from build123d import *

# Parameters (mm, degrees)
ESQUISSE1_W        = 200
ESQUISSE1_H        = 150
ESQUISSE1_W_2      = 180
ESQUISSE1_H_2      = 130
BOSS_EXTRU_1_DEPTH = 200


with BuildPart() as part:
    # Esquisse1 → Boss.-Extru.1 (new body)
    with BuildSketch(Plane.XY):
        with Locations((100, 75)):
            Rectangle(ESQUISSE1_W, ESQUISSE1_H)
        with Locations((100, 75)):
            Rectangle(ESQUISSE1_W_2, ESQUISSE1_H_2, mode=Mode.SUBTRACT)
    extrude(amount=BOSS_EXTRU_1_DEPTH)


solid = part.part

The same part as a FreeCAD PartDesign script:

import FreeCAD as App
import Part
import Sketcher
from FreeCAD import Vector

doc = App.newDocument("Part")
body = doc.addObject("PartDesign::Body", "Body")

# Sketch on XY plane
sketch1 = body.newObject("Sketcher::SketchObject", "Sketch")
sketch1.AttachmentSupport = (doc.getObject("XY_Plane"), [""])
sketch1.MapMode = "FlatFace"
sketch1.addGeometry([
    Part.LineSegment(Vector(0, 150, 0), Vector(0, 0, 0)),  # 0
    Part.LineSegment(Vector(0, 0, 0), Vector(200, 0, 0)),  # 1
    Part.LineSegment(Vector(200, 0, 0), Vector(200, 150, 0)),  # 2
    Part.LineSegment(Vector(200, 150, 0), Vector(0, 150, 0)),  # 3
    Part.LineSegment(Vector(190, 10, 0), Vector(10, 10, 0)),  # 4
    Part.LineSegment(Vector(10, 10, 0), Vector(10, 140, 0)),  # 5
    Part.LineSegment(Vector(10, 140, 0), Vector(190, 140, 0)),  # 6
    Part.LineSegment(Vector(190, 140, 0), Vector(190, 10, 0)),  # 7
], False)
sketch1.addConstraint([
    Sketcher.Constraint("Coincident", 0, 2, 1, 1),
    Sketcher.Constraint("Coincident", 1, 2, 2, 1),
    Sketcher.Constraint("Coincident", 2, 2, 3, 1),
    Sketcher.Constraint("Coincident", 3, 2, 0, 1),
    Sketcher.Constraint("Coincident", 4, 2, 5, 1),
    Sketcher.Constraint("Coincident", 5, 2, 6, 1),
    Sketcher.Constraint("Coincident", 6, 2, 7, 1),
    Sketcher.Constraint("Coincident", 7, 2, 4, 1),
    Sketcher.Constraint("Vertical", 0),
    Sketcher.Constraint("Horizontal", 1),
    Sketcher.Constraint("Vertical", 2),
    Sketcher.Constraint("Horizontal", 3),
    Sketcher.Constraint("Horizontal", 4),
    Sketcher.Constraint("Vertical", 5),
    Sketcher.Constraint("Horizontal", 6),
    Sketcher.Constraint("Vertical", 7),
    Sketcher.Constraint("Coincident", 0, 2, -1, 1),
    Sketcher.Constraint("DistanceX", 1, 1, 1, 2, 200.0),
    Sketcher.Constraint("DistanceX", 4, 2, 4, 1, 180.0),
    Sketcher.Constraint("DistanceY", 0, 2, 0, 1, 150.0),
    Sketcher.Constraint("DistanceY", 5, 1, 5, 2, 130.0),
    Sketcher.Constraint("DistanceX", -1, 1, 4, 2, 10.0),
    Sketcher.Constraint("DistanceY", -1, 1, 4, 2, 10.0),
])
pad1 = body.newObject("PartDesign::Pad", "Pad")
pad1.Profile = sketch1
pad1.Length = 200

doc.recompute()
